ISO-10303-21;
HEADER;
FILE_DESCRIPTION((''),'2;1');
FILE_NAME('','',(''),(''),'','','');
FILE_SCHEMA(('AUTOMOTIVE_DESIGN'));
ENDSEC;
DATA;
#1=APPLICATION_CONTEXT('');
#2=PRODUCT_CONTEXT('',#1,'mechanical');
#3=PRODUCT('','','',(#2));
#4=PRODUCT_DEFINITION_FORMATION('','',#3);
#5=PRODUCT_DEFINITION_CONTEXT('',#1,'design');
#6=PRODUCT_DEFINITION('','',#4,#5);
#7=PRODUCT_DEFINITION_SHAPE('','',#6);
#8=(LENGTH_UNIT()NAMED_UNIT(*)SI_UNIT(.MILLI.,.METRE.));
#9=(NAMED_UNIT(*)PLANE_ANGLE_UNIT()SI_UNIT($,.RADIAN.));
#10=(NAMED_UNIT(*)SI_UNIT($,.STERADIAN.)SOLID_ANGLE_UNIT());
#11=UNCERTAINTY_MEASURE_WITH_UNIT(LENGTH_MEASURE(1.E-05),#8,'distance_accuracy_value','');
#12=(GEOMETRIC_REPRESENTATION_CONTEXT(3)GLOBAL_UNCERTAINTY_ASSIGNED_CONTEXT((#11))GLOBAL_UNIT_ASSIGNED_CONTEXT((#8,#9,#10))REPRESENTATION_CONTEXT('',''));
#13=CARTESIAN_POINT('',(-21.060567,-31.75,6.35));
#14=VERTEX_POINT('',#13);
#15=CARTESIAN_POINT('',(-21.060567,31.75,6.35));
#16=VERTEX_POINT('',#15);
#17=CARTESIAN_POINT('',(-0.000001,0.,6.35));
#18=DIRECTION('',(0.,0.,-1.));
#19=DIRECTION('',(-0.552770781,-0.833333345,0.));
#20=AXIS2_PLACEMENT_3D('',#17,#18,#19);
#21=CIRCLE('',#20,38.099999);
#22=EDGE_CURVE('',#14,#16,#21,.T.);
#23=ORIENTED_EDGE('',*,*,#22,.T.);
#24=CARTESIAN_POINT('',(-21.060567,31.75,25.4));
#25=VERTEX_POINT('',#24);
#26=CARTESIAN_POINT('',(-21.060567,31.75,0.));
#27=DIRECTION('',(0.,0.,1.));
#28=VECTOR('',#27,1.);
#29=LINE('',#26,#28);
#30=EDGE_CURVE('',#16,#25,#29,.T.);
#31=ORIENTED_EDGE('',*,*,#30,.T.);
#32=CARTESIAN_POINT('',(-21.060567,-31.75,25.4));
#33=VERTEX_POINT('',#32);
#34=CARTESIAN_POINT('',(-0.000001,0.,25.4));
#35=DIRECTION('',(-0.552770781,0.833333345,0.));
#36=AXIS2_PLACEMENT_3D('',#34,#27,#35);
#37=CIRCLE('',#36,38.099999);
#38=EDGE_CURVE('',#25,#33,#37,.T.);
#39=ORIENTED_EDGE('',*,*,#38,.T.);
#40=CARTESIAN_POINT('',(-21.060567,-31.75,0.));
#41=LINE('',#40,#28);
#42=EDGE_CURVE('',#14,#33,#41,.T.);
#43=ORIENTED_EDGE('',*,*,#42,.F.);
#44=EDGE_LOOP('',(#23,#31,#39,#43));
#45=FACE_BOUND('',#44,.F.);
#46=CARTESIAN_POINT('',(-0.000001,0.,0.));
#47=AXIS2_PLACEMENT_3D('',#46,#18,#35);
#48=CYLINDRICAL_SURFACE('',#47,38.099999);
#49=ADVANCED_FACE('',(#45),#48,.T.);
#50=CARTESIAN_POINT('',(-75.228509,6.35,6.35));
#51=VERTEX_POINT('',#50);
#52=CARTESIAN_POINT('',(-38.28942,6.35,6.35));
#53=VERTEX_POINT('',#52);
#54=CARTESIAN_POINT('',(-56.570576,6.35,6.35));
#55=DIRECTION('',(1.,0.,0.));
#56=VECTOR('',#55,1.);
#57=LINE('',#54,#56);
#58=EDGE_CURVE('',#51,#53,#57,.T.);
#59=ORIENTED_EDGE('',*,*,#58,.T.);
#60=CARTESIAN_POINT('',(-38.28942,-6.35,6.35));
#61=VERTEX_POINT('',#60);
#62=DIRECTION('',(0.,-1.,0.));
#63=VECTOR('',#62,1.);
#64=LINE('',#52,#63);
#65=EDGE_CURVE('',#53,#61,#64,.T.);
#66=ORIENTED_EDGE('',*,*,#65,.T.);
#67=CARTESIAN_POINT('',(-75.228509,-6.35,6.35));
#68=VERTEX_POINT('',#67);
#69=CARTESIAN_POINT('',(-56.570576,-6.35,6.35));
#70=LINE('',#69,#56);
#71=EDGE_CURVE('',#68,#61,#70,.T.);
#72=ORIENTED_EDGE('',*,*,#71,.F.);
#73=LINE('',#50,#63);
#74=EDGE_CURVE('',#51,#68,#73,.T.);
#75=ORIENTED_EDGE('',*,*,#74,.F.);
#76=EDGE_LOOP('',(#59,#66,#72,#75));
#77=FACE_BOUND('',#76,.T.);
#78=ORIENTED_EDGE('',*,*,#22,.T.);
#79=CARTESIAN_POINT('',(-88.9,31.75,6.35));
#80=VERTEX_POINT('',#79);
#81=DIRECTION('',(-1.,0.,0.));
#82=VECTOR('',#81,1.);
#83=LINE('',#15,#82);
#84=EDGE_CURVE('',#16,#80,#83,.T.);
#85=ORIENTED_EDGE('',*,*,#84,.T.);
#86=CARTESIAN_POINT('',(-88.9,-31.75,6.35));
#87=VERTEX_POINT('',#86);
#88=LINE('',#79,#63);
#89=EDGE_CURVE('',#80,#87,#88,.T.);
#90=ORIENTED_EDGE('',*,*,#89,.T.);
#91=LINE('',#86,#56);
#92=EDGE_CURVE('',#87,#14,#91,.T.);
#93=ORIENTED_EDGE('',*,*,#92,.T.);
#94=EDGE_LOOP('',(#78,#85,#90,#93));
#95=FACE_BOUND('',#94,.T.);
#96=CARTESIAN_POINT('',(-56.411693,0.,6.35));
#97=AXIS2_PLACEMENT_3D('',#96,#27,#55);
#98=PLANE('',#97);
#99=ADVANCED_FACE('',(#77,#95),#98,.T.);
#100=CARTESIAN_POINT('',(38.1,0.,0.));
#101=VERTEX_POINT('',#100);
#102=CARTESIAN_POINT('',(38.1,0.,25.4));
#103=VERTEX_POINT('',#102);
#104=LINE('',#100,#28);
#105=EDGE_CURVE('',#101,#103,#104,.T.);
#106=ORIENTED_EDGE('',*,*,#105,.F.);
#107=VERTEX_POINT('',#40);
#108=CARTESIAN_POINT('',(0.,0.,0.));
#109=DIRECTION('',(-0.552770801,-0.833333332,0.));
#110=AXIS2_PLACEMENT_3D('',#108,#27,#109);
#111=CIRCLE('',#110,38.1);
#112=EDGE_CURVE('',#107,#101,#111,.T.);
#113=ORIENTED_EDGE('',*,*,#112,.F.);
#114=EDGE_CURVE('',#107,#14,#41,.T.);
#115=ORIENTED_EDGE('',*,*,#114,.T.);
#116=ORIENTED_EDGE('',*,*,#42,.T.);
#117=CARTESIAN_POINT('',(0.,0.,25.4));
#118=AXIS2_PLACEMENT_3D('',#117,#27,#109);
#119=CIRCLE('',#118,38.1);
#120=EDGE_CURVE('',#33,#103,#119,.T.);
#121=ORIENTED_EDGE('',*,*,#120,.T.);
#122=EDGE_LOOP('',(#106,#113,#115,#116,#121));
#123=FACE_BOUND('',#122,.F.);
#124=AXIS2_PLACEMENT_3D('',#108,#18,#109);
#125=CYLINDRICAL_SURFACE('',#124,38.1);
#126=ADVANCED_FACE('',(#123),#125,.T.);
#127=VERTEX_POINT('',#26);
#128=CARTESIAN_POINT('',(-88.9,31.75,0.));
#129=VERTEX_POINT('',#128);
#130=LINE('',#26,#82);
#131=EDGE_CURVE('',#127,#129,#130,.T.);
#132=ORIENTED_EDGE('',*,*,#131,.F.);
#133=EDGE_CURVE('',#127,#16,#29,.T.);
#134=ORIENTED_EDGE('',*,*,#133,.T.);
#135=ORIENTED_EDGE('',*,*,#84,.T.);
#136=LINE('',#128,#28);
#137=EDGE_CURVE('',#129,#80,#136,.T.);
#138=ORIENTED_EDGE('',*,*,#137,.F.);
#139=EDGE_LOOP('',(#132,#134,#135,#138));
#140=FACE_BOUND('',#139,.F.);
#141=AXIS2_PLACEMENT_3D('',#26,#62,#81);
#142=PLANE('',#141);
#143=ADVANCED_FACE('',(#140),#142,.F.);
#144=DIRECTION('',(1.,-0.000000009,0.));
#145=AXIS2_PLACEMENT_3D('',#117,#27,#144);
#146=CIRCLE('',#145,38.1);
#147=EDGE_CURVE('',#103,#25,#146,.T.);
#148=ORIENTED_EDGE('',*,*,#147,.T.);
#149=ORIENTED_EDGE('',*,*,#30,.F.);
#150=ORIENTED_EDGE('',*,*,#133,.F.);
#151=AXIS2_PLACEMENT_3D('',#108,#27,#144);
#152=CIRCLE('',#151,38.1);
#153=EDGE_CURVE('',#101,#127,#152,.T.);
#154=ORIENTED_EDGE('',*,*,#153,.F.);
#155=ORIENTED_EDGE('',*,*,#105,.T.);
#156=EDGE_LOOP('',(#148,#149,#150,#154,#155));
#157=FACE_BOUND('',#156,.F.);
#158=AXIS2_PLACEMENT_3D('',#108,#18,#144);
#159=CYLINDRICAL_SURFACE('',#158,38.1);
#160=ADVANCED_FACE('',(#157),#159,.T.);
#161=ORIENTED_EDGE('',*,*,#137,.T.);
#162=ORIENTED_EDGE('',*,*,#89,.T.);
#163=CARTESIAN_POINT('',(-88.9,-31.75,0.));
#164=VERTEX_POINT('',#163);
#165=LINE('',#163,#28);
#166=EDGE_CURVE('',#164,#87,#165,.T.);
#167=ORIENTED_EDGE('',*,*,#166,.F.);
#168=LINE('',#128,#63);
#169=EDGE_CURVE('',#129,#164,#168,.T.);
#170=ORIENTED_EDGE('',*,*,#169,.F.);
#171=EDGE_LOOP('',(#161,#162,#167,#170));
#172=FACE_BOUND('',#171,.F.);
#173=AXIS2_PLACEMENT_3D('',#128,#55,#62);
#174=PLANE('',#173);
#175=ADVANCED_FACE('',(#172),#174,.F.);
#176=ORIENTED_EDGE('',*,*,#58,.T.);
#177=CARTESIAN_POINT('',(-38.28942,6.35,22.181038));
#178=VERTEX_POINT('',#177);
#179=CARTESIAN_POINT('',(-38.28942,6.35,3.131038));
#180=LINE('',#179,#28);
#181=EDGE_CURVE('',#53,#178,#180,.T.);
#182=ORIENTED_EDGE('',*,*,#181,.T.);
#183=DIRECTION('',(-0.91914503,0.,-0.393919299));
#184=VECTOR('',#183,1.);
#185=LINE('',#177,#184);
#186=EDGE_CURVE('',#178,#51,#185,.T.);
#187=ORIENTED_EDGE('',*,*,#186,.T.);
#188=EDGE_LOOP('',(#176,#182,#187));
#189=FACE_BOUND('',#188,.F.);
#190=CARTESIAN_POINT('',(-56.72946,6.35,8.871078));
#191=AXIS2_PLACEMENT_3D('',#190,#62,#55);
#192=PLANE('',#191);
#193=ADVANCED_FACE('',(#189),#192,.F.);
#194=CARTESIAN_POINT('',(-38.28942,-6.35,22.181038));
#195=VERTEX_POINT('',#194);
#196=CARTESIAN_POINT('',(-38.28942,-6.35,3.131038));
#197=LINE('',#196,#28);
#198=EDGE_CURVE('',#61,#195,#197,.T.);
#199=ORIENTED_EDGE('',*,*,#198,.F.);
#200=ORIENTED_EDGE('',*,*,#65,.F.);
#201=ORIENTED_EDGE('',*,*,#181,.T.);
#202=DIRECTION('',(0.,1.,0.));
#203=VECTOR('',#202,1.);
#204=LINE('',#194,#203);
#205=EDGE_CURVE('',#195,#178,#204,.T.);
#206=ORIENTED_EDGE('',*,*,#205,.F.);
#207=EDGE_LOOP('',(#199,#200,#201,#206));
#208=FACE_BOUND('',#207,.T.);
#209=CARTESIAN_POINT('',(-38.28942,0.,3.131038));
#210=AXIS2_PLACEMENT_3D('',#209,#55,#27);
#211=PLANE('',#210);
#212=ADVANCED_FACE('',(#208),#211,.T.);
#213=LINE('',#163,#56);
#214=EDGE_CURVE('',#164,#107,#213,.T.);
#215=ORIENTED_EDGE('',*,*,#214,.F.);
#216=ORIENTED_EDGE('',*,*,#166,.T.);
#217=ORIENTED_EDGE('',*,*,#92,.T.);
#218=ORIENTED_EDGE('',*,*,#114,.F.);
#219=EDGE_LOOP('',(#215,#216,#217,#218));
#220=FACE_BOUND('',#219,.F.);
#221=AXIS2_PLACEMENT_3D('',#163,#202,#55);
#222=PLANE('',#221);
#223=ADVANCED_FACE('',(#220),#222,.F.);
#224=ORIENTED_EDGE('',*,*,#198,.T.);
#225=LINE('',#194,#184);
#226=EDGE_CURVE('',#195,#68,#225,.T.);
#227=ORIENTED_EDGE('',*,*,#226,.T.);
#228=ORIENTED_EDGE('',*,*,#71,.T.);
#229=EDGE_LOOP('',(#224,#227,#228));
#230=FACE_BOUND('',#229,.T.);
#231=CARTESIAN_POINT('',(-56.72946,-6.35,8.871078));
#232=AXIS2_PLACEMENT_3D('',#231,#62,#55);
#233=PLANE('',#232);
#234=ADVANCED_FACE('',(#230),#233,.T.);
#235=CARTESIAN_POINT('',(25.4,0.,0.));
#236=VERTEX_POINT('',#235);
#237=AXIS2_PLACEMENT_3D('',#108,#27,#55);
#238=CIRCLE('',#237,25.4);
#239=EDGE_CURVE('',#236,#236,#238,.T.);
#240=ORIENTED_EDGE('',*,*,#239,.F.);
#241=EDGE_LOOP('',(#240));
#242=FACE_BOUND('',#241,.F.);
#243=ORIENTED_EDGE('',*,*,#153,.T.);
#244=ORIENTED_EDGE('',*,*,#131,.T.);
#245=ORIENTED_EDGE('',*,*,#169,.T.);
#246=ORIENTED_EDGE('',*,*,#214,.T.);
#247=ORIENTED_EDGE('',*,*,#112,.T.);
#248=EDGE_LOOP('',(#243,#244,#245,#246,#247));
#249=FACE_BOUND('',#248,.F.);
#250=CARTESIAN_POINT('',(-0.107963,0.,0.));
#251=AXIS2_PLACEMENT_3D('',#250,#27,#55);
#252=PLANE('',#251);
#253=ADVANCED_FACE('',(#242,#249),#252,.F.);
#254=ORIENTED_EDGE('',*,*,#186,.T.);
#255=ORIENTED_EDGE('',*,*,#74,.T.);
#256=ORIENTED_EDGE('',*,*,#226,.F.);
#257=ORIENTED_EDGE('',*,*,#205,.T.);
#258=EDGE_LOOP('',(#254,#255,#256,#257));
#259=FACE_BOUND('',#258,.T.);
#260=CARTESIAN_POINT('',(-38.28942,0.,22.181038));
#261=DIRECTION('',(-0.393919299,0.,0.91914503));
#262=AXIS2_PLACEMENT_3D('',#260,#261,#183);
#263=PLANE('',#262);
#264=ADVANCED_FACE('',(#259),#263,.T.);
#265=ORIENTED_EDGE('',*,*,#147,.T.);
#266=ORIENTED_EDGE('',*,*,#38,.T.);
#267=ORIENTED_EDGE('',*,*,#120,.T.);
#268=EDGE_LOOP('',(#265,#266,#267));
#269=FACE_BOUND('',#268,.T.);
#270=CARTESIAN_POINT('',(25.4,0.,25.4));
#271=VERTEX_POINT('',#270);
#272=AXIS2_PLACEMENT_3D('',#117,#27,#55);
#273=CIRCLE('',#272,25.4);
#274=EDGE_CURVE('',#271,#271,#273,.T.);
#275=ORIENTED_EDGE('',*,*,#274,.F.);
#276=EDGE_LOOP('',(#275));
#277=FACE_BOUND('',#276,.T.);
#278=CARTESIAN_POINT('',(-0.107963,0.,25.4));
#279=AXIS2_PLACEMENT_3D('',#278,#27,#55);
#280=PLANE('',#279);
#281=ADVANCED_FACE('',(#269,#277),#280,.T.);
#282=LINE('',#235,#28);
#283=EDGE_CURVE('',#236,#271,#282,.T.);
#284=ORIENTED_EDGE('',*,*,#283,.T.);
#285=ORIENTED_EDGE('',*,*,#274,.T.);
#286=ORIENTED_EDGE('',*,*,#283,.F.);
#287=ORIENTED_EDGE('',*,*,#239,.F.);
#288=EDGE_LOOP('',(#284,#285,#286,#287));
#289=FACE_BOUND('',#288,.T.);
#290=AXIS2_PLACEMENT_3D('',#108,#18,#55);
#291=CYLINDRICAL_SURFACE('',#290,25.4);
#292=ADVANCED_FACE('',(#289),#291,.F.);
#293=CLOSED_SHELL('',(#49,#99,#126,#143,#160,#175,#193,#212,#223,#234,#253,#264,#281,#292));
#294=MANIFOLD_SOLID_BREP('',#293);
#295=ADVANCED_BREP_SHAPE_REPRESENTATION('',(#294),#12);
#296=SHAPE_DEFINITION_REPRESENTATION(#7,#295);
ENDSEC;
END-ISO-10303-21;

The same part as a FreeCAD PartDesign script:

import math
import FreeCAD as App
import Part
import Sketcher
Q = App.Units.Quantity


def add_polygon(sketch, points):
    """Adds a closed chain of lines whose ends are joined by coincident constraints."""
    first, n = sketch.GeometryCount, len(points)
    for a, b in zip(points, points[1:] + points[:1]):
        sketch.addGeometry(Part.LineSegment(App.Vector(*a, 0), App.Vector(*b, 0)), False)
    for i in range(n):
        sketch.addConstraint(Sketcher.Constraint("Coincident", first + i, 2, first + (i + 1) % n, 1))

doc = App.newDocument("Part")
params = doc.addObject("Spreadsheet::Sheet", "Params")
for row, (alias, value) in enumerate([
    ("sketch1_radius", "1.5 in"),
    ("sketch1_height", "2.5 in"),
    ("pad1_length", "0.25 in"),
    ("sketch2_diameter", "2 in"),
    ("sketch2_radius", "1.5 in"),
    ("pad2_length", "1 in"),
    ("sketch3_width", "1.75 in"),
    ("sketch3_height", "0.75 in"),
    ("pad3_length", "0.25 in"),
    ("pad3_length2", "0.25 in"),
], start=1):
    params.set(f"A{row}", alias)
    params.set(f"B{row}", "=" + value)
    params.setAlias(f"B{row}", alias)

body = doc.addObject("PartDesign::Body", "Body")

sketch1 = body.newObject("Sketcher::SketchObject", "Sketch")
sketch1.AttachmentSupport = (doc.getObject("XY_Plane"), [""])
sketch1.MapMode = "FlatFace"
sketch1.addGeometry(Part.ArcOfCircle(Part.Circle(App.Vector(-0.000001, 0, 0), App.Vector(0, 0, 1), 38.099999), math.radians(123.557309), math.radians(236.442691)), False)
sketch1.addGeometry(Part.LineSegment(App.Vector(-21.060567, 31.75, 0), App.Vector(-88.9, 31.75, 0)), False)
sketch1.addGeometry(Part.LineSegment(App.Vector(-88.9, 31.75, 0), App.Vector(-88.9, -31.75, 0)), False)
sketch1.addGeometry(Part.LineSegment(App.Vector(-88.9, -31.75, 0), App.Vector(-21.060567, -31.75, 0)), False)
sketch1.addConstraint(Sketcher.Constraint("Coincident", 0, 1, 1, 1))
sketch1.addConstraint(Sketcher.Constraint("Coincident", 1, 2, 2, 1))
sketch1.addConstraint(Sketcher.Constraint("Coincident", 2, 2, 3, 1))
sketch1.addConstraint(Sketcher.Constraint("Coincident", 3, 2, 0, 2))
sketch1.addConstraint(Sketcher.Constraint("Horizontal", 1))
sketch1.addConstraint(Sketcher.Constraint("Vertical", 2))
sketch1.addConstraint(Sketcher.Constraint("Horizontal", 3))
sketch1.addConstraint(Sketcher.Constraint("Coincident", 0, 3, -1, 1))
sketch1.addConstraint(Sketcher.Constraint("Vertical", 0, 1, 3, 2))
sketch1.addConstraint(Sketcher.Constraint("Radius", 0, Q("1.5 in")))
sketch1.addConstraint(Sketcher.Constraint("DistanceY", 2, 2, 2, 1, Q("2.5 in")))
sketch1.addConstraint(Sketcher.Constraint("DistanceX", 1, 2, -1, 1, Q("3.5 in")))
sketch1.setExpression("Constraints[9]", "Params.sketch1_radius")
sketch1.setExpression("Constraints[10]", "Params.sketch1_height")
pad1 = body.newObject("PartDesign::Pad", "Pad")
pad1.Profile = sketch1
pad1.setExpression("Length", "Params.pad1_length")

sketch2 = body.newObject("Sketcher::SketchObject", "Sketch001")
sketch2.AttachmentSupport = (doc.getObject("XY_Plane"), [""])
sketch2.MapMode = "FlatFace"
sketch2.addGeometry(Part.ArcOfCircle(Part.Circle(App.Vector(0, 0, 0), App.Vector(0, 0, 1), 38.1), math.radians(-123.55731), math.radians(0)), False)
sketch2.addGeometry(Part.ArcOfCircle(Part.Circle(App.Vector(0, 0, 0), App.Vector(0, 0, 1), 38.1), math.radians(0), math.radians(123.55731)), False)
sketch2.addGeometry(Part.ArcOfCircle(Part.Circle(App.Vector(-0.000001, 0, 0), App.Vector(0, 0, 1), 38.099999), math.radians(123.557309), math.radians(236.442691)), False)
sketch2.addGeometry(Part.Circle(App.Vector(0, 0, 0), App.Vector(0, 0, 1), 25.4), False)
sketch2.addConstraint(Sketcher.Constraint("Tangent", 0, 2, 1, 1))
sketch2.addConstraint(Sketcher.Constraint("Tangent", 1, 2, 2, 1))
sketch2.addConstraint(Sketcher.Constraint("Tangent", 2, 2, 0, 1))
sketch2.addConstraint(Sketcher.Constraint("Coincident", 0, 3, -1, 1))
sketch2.addConstraint(Sketcher.Constraint("Coincident", 3, 3, -1, 1))
sketch2.addConstraint(Sketcher.Constraint("PointOnObject", 0, 2, -1))
sketch2.addConstraint(Sketcher.Constraint("Vertical", 1, 2, 2, 2))
sketch2.addConstraint(Sketcher.Constraint("Diameter", 3, Q("2 in")))
sketch2.addConstraint(Sketcher.Constraint("Radius", 0, Q("1.5 in")))
sketch2.addConstraint(Sketcher.Constraint("DistanceY", 2, 2, 1, 2, Q("2.5 in")))
sketch2.setExpression("Constraints[7]", "Params.sketch2_diameter")
sketch2.setExpression("Constraints[8]", "Params.sketch2_radius")
pad2 = body.newObject("PartDesign::Pad", "Pad001")
pad2.Profile = sketch2
pad2.setExpression("Length", "Params.pad2_length")

sketch3 = body.newObject("Sketcher::SketchObject", "Sketch002")
sketch3.AttachmentSupport = (doc.getObject("XZ_Plane"), [""])
sketch3.MapMode = "FlatFace"
add_polygon(sketch3, [(-82.73942, 3.131038), (-38.28942, 3.131038), (-38.28942, 22.181038)])
sketch3.addConstraint(Sketcher.Constraint("Horizontal", 0))
sketch3.addConstraint(Sketcher.Constraint("Vertical", 1))
sketch3.addConstraint(Sketcher.Constraint("DistanceX", 0, 1, 0, 2, Q("1.75 in")))
sketch3.addConstraint(Sketcher.Constraint("DistanceY", 1, 1, 1, 2, Q("0.75 in")))
sketch3.addConstraint(Sketcher.Constraint("DistanceX", 0, 2, -1, 1, Q("38.28942 mm")))
sketch3.addConstraint(Sketcher.Constraint("DistanceY", -1, 1, 0, 2, Q("3.131038 mm")))
sketch3.setExpression("Constraints[5]", "Params.sketch3_width")
sketch3.setExpression("Constraints[6]", "Params.sketch3_height")
pad3 = body.newObject("PartDesign::Pad", "Pad002")
pad3.Profile = sketch3
pad3.Type = "TwoLengths"
pad3.setExpression("Length", "Params.pad3_length")
pad3.setExpression("Length2", "Params.pad3_length2")

doc.recompute()
